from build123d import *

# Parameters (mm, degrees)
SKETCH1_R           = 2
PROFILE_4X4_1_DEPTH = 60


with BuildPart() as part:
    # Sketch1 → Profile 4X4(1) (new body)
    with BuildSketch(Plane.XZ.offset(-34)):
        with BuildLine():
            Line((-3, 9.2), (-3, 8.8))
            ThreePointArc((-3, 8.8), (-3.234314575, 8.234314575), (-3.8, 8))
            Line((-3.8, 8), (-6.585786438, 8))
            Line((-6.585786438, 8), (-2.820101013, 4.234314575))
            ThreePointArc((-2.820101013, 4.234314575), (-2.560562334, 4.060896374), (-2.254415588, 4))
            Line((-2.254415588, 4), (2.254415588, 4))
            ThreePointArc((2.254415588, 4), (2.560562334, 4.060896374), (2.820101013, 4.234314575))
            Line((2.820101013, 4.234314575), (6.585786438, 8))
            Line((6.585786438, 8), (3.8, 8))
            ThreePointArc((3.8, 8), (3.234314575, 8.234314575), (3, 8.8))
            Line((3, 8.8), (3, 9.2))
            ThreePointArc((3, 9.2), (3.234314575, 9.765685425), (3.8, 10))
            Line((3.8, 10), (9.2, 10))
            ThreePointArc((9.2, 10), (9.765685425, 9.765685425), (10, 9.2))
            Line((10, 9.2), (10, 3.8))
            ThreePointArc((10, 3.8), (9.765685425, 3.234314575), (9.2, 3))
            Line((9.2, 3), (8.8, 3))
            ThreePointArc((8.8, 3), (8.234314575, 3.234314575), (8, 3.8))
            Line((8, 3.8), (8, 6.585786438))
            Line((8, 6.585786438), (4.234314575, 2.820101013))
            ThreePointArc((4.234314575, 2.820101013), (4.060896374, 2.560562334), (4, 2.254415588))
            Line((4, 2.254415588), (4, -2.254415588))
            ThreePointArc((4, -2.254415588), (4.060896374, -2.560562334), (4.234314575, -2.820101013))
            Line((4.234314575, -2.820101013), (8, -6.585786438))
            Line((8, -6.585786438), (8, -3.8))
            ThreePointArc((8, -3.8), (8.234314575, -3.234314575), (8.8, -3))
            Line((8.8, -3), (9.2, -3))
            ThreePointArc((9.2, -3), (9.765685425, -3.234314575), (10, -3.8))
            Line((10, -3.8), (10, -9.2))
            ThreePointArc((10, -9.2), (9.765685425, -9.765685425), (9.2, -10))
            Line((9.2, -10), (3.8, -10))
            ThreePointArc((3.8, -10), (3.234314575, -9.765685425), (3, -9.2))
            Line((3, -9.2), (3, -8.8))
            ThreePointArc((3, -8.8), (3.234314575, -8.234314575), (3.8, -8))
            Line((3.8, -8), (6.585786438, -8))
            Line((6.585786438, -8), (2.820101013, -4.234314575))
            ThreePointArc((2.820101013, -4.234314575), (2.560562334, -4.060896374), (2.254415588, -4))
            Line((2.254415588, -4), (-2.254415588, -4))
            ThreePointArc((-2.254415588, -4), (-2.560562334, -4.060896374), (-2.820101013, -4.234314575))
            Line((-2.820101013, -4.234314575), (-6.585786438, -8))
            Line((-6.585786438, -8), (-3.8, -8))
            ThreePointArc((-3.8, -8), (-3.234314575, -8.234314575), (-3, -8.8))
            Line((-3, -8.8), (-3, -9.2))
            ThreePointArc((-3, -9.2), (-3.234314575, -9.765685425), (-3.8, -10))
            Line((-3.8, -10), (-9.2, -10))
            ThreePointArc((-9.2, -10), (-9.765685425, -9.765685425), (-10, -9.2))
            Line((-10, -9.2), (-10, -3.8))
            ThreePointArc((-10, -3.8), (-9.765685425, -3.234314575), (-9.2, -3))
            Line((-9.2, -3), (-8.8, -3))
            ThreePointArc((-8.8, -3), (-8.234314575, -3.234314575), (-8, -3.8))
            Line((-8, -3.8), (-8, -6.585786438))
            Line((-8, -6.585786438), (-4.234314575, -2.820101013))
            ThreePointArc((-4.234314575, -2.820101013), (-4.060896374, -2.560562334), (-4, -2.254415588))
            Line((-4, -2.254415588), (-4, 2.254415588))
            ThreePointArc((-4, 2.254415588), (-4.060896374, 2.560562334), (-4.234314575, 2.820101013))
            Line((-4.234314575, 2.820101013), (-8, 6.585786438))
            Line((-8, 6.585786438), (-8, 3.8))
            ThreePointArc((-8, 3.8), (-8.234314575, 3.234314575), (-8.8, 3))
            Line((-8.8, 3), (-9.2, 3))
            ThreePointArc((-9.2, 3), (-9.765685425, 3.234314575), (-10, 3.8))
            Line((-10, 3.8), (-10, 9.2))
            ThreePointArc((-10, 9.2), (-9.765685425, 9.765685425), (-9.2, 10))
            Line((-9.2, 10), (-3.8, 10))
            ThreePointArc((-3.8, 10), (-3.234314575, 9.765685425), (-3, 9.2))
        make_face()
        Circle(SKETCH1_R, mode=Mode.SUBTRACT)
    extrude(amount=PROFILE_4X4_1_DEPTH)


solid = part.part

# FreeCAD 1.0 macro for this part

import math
import FreeCAD as App
import Part
import Sketcher

doc = App.newDocument("Part")
params = doc.addObject("Spreadsheet::Sheet", "Params")
for row, (alias, value) in enumerate([
    ("sketch1_diameter", "4 mm"),
    ("sketch1_radius", "0.8 mm"),
    ("sketch1_width", "5.4 mm"),
    ("sketch1_width2", "0.4 mm"),
    ("pad1_length", "60 mm"),
], start=1):
    params.set(f"A{row}", alias)
    params.set(f"B{row}", "=" + value)
    params.setAlias(f"B{row}", alias)

body = doc.addObject("PartDesign::Body", "Body")

sketch1 = doc.addObject("Sketcher::SketchObject", "Sketch")
body.addObject(sketch1)
sketch1.AttachmentSupport = (doc.XZ_Plane, [""])
sketch1.MapMode = "FlatFace"
sketch1.AttachmentOffset = App.Placement(App.Vector(0, 0, -34), App.Rotation())
sketch1.addGeometry([
    Part.LineSegment(App.Vector(-3, 8.8, 0), App.Vector(-3, 9.2, 0)),
    Part.ArcOfCircle(Part.Circle(App.Vector(-3.8, 9.2, 0), App.Vector(0, 0, 1), 0.8), math.radians(0), math.radians(90)),
    Part.LineSegment(App.Vector(-3.8, 10, 0), App.Vector(-9.2, 10, 0)),
    Part.ArcOfCircle(Part.Circle(App.Vector(-9.2, 9.2, 0), App.Vector(0, 0, 1), 0.8), math.radians(90), math.radians(180)),
    Part.LineSegment(App.Vector(-10, 9.2, 0), App.Vector(-10, 3.8, 0)),
    Part.ArcOfCircle(Part.Circle(App.Vector(-9.2, 3.8, 0), App.Vector(0, 0, 1), 0.8), math.radians(180), math.radians(270)),
    Part.LineSegment(App.Vector(-9.2, 3, 0), App.Vector(-8.8, 3, 0)),
    Part.ArcOfCircle(Part.Circle(App.Vector(-8.8, 3.8, 0), App.Vector(0, 0, 1), 0.8), math.radians(-90), math.radians(0)),
    Part.LineSegment(App.Vector(-8, 3.8, 0), App.Vector(-8, 6.59, 0)),
    Part.LineSegment(App.Vector(-8, 6.59, 0), App.Vector(-4.23, 2.82, 0)),
    Part.ArcOfCircle(Part.Circle(App.Vector(-4.8, 2.25, 0), App.Vector(0, 0, 1), 0.8), math.radians(0), math.radians(45)),
    Part.LineSegment(App.Vector(-4, 2.25, 0), App.Vector(-4, -2.25, 0)),
    Part.ArcOfCircle(Part.Circle(App.Vector(-4.8, -2.25, 0), App.Vector(0, 0, 1), 0.8), math.radians(-45), math.radians(0)),
    Part.LineSegment(App.Vector(-4.23, -2.82, 0), App.Vector(-8, -6.59, 0)),
    Part.LineSegment(App.Vector(-8, -6.59, 0), App.Vector(-8, -3.8, 0)),
    Part.ArcOfCircle(Part.Circle(App.Vector(-8.8, -3.8, 0), App.Vector(0, 0, 1), 0.8), math.radians(0), math.radians(90)),
    Part.LineSegment(App.Vector(-8.8, -3, 0), App.Vector(-9.2, -3, 0)),
    Part.ArcOfCircle(Part.Circle(App.Vector(-9.2, -3.8, 0), App.Vector(0, 0, 1), 0.8), math.radians(90), math.radians(180)),
    Part.LineSegment(App.Vector(-10, -3.8, 0), App.Vector(-10, -9.2, 0)),
    Part.ArcOfCircle(Part.Circle(App.Vector(-9.2, -9.2, 0), App.Vector(0, 0, 1), 0.8), math.radians(180), math.radians(270)),
    Part.LineSegment(App.Vector(-9.2, -10, 0), App.Vector(-3.8, -10, 0)),
    Part.ArcOfCircle(Part.Circle(App.Vector(-3.8, -9.2, 0), App.Vector(0, 0, 1), 0.8), math.radians(-90), math.radians(0)),
    Part.LineSegment(App.Vector(-3, -9.2, 0), App.Vector(-3, -8.8, 0)),
    Part.ArcOfCircle(Part.Circle(App.Vector(-3.8, -8.8, 0), App.Vector(0, 0, 1), 0.8), math.radians(0), math.radians(90)),
    Part.LineSegment(App.Vector(-3.8, -8, 0), App.Vector(-6.59, -8, 0)),
    Part.LineSegment(App.Vector(-6.59, -8, 0), App.Vector(-2.82, -4.23, 0)),
    Part.ArcOfCircle(Part.Circle(App.Vector(-2.25, -4.8, 0), App.Vector(0, 0, 1), 0.8), math.radians(90), math.radians(135)),
    Part.LineSegment(App.Vector(-2.25, -4, 0), App.Vector(2.25, -4, 0)),
    Part.ArcOfCircle(Part.Circle(App.Vector(2.25, -4.8, 0), App.Vector(0, 0, 1), 0.8), math.radians(45), math.radians(90)),
    Part.LineSegment(App.Vector(2.82, -4.23, 0), App.Vector(6.59, -8, 0)),
    Part.LineSegment(App.Vector(6.59, -8, 0), App.Vector(3.8, -8, 0)),
    Part.ArcOfCircle(Part.Circle(App.Vector(3.8, -8.8, 0), App.Vector(0, 0, 1), 0.8), math.radians(90), math.radians(180)),
    Part.LineSegment(App.Vector(3, -8.8, 0), App.Vector(3, -9.2, 0)),
    Part.ArcOfCircle(Part.Circle(App.Vector(3.8, -9.2, 0), App.Vector(0, 0, 1), 0.8), math.radians(180), math.radians(270)),
    Part.LineSegment(App.Vector(3.8, -10, 0), App.Vector(9.2, -10, 0)),
    Part.ArcOfCircle(Part.Circle(App.Vector(9.2, -9.2, 0), App.Vector(0, 0, 1), 0.8), math.radians(-90), math.radians(0)),
    Part.LineSegment(App.Vector(10, -9.2, 0), App.Vector(10, -3.8, 0)),
    Part.ArcOfCircle(Part.Circle(App.Vector(9.2, -3.8, 0), App.Vector(0, 0, 1), 0.8), math.radians(0), math.radians(90)),
    Part.LineSegment(App.Vector(9.2, -3, 0), App.Vector(8.8, -3, 0)),
    Part.ArcOfCircle(Part.Circle(App.Vector(8.8, -3.8, 0), App.Vector(0, 0, 1), 0.8), math.radians(90), math.radians(180)),
    Part.LineSegment(App.Vector(8, -3.8, 0), App.Vector(8, -6.59, 0)),
    Part.LineSegment(App.Vector(8, -6.59, 0), App.Vector(4.23, -2.82, 0)),
    Part.ArcOfCircle(Part.Circle(App.Vector(4.8, -2.25, 0), App.Vector(0, 0, 1), 0.8), math.radians(180), math.radians(225)),
    Part.LineSegment(App.Vector(4, -2.25, 0), App.Vector(4, 2.25, 0)),
    Part.ArcOfCircle(Part.Circle(App.Vector(4.8, 2.25, 0), App.Vector(0, 0, 1), 0.8), math.radians(135), math.radians(180)),
    Part.LineSegment(App.Vector(4.23, 2.82, 0), App.Vector(8, 6.59, 0)),
    Part.LineSegment(App.Vector(8, 6.59, 0), App.Vector(8, 3.8, 0)),
    Part.ArcOfCircle(Part.Circle(App.Vector(8.8, 3.8, 0), App.Vector(0, 0, 1), 0.8), math.radians(180), math.radians(270)),
    Part.LineSegment(App.Vector(8.8, 3, 0), App.Vector(9.2, 3, 0)),
    Part.ArcOfCircle(Part.Circle(App.Vector(9.2, 3.8, 0), App.Vector(0, 0, 1), 0.8), math.radians(-90), math.radians(0)),
    Part.LineSegment(App.Vector(10, 3.8, 0), App.Vector(10, 9.2, 0)),
    Part.ArcOfCircle(Part.Circle(App.Vector(9.2, 9.2, 0), App.Vector(0, 0, 1), 0.8), math.radians(0), math.radians(90)),
    Part.LineSegment(App.Vector(9.2, 10, 0), App.Vector(3.8, 10, 0)),
    Part.ArcOfCircle(Part.Circle(App.Vector(3.8, 9.2, 0), App.Vector(0, 0, 1), 0.8), math.radians(90), math.radians(180)),
    Part.LineSegment(App.Vector(3, 9.2, 0), App.Vector(3, 8.8, 0)),
    Part.ArcOfCircle(Part.Circle(App.Vector(3.8, 8.8, 0), App.Vector(0, 0, 1), 0.8), math.radians(180), math.radians(270)),
    Part.LineSegment(App.Vector(3.8, 8, 0), App.Vector(6.59, 8, 0)),
    Part.LineSegment(App.Vector(6.59, 8, 0), App.Vector(2.82, 4.23, 0)),
    Part.ArcOfCircle(Part.Circle(App.Vector(2.25, 4.8, 0), App.Vector(0, 0, 1), 0.8), math.radians(-90), math.radians(-45)),
    Part.LineSegment(App.Vector(2.25, 4, 0), App.Vector(-2.25, 4, 0)),
    Part.ArcOfCircle(Part.Circle(App.Vector(-2.25, 4.8, 0), App.Vector(0, 0, 1), 0.8), math.radians(-135), math.radians(-90)),
    Part.LineSegment(App.Vector(-2.82, 4.23, 0), App.Vector(-6.59, 8, 0)),
    Part.LineSegment(App.Vector(-6.59, 8, 0), App.Vector(-3.8, 8, 0)),
    Part.ArcOfCircle(Part.Circle(App.Vector(-3.8, 8.8, 0), App.Vector(0, 0, 1), 0.8), math.radians(-90), math.radians(0)),
    Part.Circle(App.Vector(0, 0, 0), App.Vector(0, 0, 1), 2),
], False)
sketch1.addConstraint([
    Sketcher.Constraint("Tangent", 0, 2, 1, 1),
    Sketcher.Constraint("Tangent", 1, 2, 2, 1),
    Sketcher.Constraint("Tangent", 2, 2, 3, 1),
    Sketcher.Constraint("Tangent", 3, 2, 4, 1),
    Sketcher.Constraint("Tangent", 4, 2, 5, 1),
    Sketcher.Constraint("Tangent", 5, 2, 6, 1),
    Sketcher.Constraint("Tangent", 6, 2, 7, 1),
    Sketcher.Constraint("Tangent", 7, 2, 8, 1),
    Sketcher.Constraint("Coincident", 8, 2, 9, 1),
    Sketcher.Constraint("Tangent", 9, 2, 10, 2),
    Sketcher.Constraint("Tangent", 10, 1, 11, 1),
    Sketcher.Constraint("Tangent", 11, 2, 12, 2),
    Sketcher.Constraint("Tangent", 12, 1, 13, 1),
    Sketcher.Constraint("Coincident", 13, 2, 14, 1),
    Sketcher.Constraint("Tangent", 14, 2, 15, 1),
    Sketcher.Constraint("Tangent", 15, 2, 16, 1),
    Sketcher.Constraint("Tangent", 16, 2, 17, 1),
    Sketcher.Constraint("Tangent", 17, 2, 18, 1),
    Sketcher.Constraint("Tangent", 18, 2, 19, 1),
    Sketcher.Constraint("Tangent", 19, 2, 20, 1),
    Sketcher.Constraint("Tangent", 20, 2, 21, 1),
    Sketcher.Constraint("Tangent", 21, 2, 22, 1),
    Sketcher.Constraint("Tangent", 22, 2, 23, 1),
    Sketcher.Constraint("Tangent", 23, 2, 24, 1),
    Sketcher.Constraint("Coincident", 24, 2, 25, 1),
    Sketcher.Constraint("Tangent", 25, 2, 26, 2),
    Sketcher.Constraint("Tangent", 26, 1, 27, 1),
    Sketcher.Constraint("Tangent", 27, 2, 28, 2),
    Sketcher.Constraint("Tangent", 28, 1, 29, 1),
    Sketcher.Constraint("Coincident", 29, 2, 30, 1),
    Sketcher.Constraint("Tangent", 30, 2, 31, 1),
    Sketcher.Constraint("Tangent", 31, 2, 32, 1),
    Sketcher.Constraint("Tangent", 32, 2, 33, 1),
    Sketcher.Constraint("Tangent", 33, 2, 34, 1),
    Sketcher.Constraint("Tangent", 34, 2, 35, 1),
    Sketcher.Constraint("Tangent", 35, 2, 36, 1),
    Sketcher.Constraint("Tangent", 36, 2, 37, 1),
    Sketcher.Constraint("Tangent", 37, 2, 38, 1),
    Sketcher.Constraint("Tangent", 38, 2, 39, 1),
    Sketcher.Constraint("Tangent", 39, 2, 40, 1),
    Sketcher.Constraint("Coincident", 40, 2, 41, 1),
    Sketcher.Constraint("Tangent", 41, 2, 42, 2),
    Sketcher.Constraint("Tangent", 42, 1, 43, 1),
    Sketcher.Constraint("Tangent", 43, 2, 44, 2),
    Sketcher.Constraint("Tangent", 44, 1, 45, 1),
    Sketcher.Constraint("Coincident", 45, 2, 46, 1),
    Sketcher.Constraint("Tangent", 46, 2, 47, 1),
    Sketcher.Constraint("Tangent", 47, 2, 48, 1),
    Sketcher.Constraint("Tangent", 48, 2, 49, 1),
    Sketcher.Constraint("Tangent", 49, 2, 50, 1),
    Sketcher.Constraint("Tangent", 50, 2, 51, 1),
    Sketcher.Constraint("Tangent", 51, 2, 52, 1),
    Sketcher.Constraint("Tangent", 52, 2, 53, 1),
    Sketcher.Constraint("Tangent", 53, 2, 54, 1),
    Sketcher.Constraint("Tangent", 54, 2, 55, 1),
    Sketcher.Constraint("Tangent", 55, 2, 56, 1),
    Sketcher.Constraint("Coincident", 56, 2, 57, 1),
    Sketcher.Constraint("Tangent", 57, 2, 58, 2),
    Sketcher.Constraint("Tangent", 58, 1, 59, 1),
    Sketcher.Constraint("Tangent", 59, 2, 60, 2),
    Sketcher.Constraint("Tangent", 60, 1, 61, 1),
    Sketcher.Constraint("Coincident", 61, 2, 62, 1),
    Sketcher.Constraint("Tangent", 62, 2, 63, 1),
    Sketcher.Constraint("Tangent", 63, 2, 0, 1),
    Sketcher.Constraint("Vertical", 0),
    Sketcher.Constraint("Horizontal", 2),
    Sketcher.Constraint("Vertical", 4),
    Sketcher.Constraint("Horizontal", 6),
    Sketcher.Constraint("Vertical", 8),
    Sketcher.Constraint("Vertical", 11),
    Sketcher.Constraint("Vertical", 14),
    Sketcher.Constraint("Horizontal", 16),
    Sketcher.Constraint("Vertical", 18),
    Sketcher.Constraint("Horizontal", 20),
    Sketcher.Constraint("Vertical", 22),
    Sketcher.Constraint("Horizontal", 24),
    Sketcher.Constraint("Horizontal", 27),
    Sketcher.Constraint("Horizontal", 30),
    Sketcher.Constraint("Vertical", 32),
    Sketcher.Constraint("Horizontal", 34),
    Sketcher.Constraint("Vertical", 36),
    Sketcher.Constraint("Horizontal", 38),
    Sketcher.Constraint("Vertical", 40),
    Sketcher.Constraint("Vertical", 43),
    Sketcher.Constraint("Vertical", 46),
    Sketcher.Constraint("Horizontal", 48),
    Sketcher.Constraint("Vertical", 50),
    Sketcher.Constraint("Horizontal", 52),
    Sketcher.Constraint("Vertical", 54),
    Sketcher.Constraint("Horizontal", 56),
    Sketcher.Constraint("Horizontal", 59),
    Sketcher.Constraint("Horizontal", 62),
    Sketcher.Constraint("Coincident", 64, 3, -1, 1),
    Sketcher.Constraint("Equal", 1, 3),
    Sketcher.Constraint("Equal", 3, 5),
    Sketcher.Constraint("Equal", 5, 7),
    Sketcher.Constraint("Equal", 7, 10),
    Sketcher.Constraint("Equal", 10, 12),
    Sketcher.Constraint("Equal", 12, 15),
    Sketcher.Constraint("Equal", 15, 17),
    Sketcher.Constraint("Equal", 17, 19),
    Sketcher.Constraint("Equal", 19, 21),
    Sketcher.Constraint("Equal", 21, 23),
    Sketcher.Constraint("Equal", 23, 26),
    Sketcher.Constraint("Equal", 26, 28),
    Sketcher.Constraint("Equal", 28, 31),
    Sketcher.Constraint("Equal", 31, 33),
    Sketcher.Constraint("Equal", 33, 35),
    Sketcher.Constraint("Equal", 35, 37),
    Sketcher.Constraint("Equal", 37, 39),
    Sketcher.Constraint("Equal", 39, 42),
    Sketcher.Constraint("Equal", 42, 44),
    Sketcher.Constraint("Equal", 44, 47),
    Sketcher.Constraint("Equal", 47, 49),
    Sketcher.Constraint("Equal", 49, 51),
    Sketcher.Constraint("Equal", 51, 53),
    Sketcher.Constraint("Equal", 53, 55),
    Sketcher.Constraint("Equal", 55, 58),
    Sketcher.Constraint("Equal", 58, 60),
    Sketcher.Constraint("Equal", 60, 63),
    Sketcher.Constraint("Symmetric", 1, 3, 33, 3, -1, 1),
    Sketcher.Constraint("Symmetric", 5, 3, 37, 3, -1, 1),
    Sketcher.Constraint("Symmetric", 10, 3, 42, 3, -1, 1),
    Sketcher.Constraint("Symmetric", 15, 3, 47, 3, -1, 1),
    Sketcher.Constraint("Symmetric", 19, 3, 51, 3, -1, 1),
    Sketcher.Constraint("Symmetric", 23, 3, 55, 3, -1, 1),
    Sketcher.Constraint("Symmetric", 26, 3, 58, 3, -1, 1),
    Sketcher.Constraint("Symmetric", 8, 2, 40, 2, -1, 1),
    Sketcher.Constraint("Symmetric", 12, 1, 44, 1, -1, 1),
    Sketcher.Constraint("Symmetric", 28, 1, 60, 1, -1, 1),
    Sketcher.Constraint("Symmetric", 23, 3, 31, 3, -2),
    Sketcher.Constraint("Symmetric", 19, 3, 35, 3, -2),
    Sketcher.Constraint("Symmetric", 15, 3, 39, 3, -2),
    Sketcher.Constraint("Symmetric", 25, 2, 28, 1, -2),
    Sketcher.Constraint("Symmetric", 12, 1, 41, 2, -2),
    Sketcher.Constraint("Symmetric", 56, 2, 61, 2, -2),
    Sketcher.Constraint("Perpendicular", 9, 13),
    Sketcher.Constraint("Parallel", 13, 25),
    Sketcher.Constraint("Equal", 48, 0),
    Sketcher.Constraint("Equal", 52, 4),
    Sketcher.Constraint("Equal", 62, 8),
    Sketcher.Constraint("Equal", 59, 11),
    Sketcher.Constraint("Equal", 13, 25),
    Sketcher.Constraint("Diameter", 64, 4.0),
    Sketcher.Constraint("Radius", 1, 0.8),
    Sketcher.Constraint("DistanceX", 2, 2, 2, 1, 5.4),
    Sketcher.Constraint("DistanceX", 6, 1, 6, 2, 0.4),
    Sketcher.Constraint("DistanceX", 0, 2, -1, 1, 3.0),
    Sketcher.Constraint("DistanceX", 10, 1, -1, 1, 4.0),
    Sketcher.Constraint("DistanceX", 27, 1, 27, 2, 4.508831),
])
sketch1.setExpression("Constraints[143]", "Params.sketch1_diameter")
sketch1.setExpression("Constraints[144]", "Params.sketch1_radius")
sketch1.setExpression("Constraints[145]", "Params.sketch1_width")
sketch1.setExpression("Constraints[146]", "Params.sketch1_width2")
pad1 = doc.addObject("PartDesign::Pad", "Pad")
body.addObject(pad1)
pad1.Profile = sketch1
pad1.setExpression("Length", "Params.pad1_length")

doc.recompute()
